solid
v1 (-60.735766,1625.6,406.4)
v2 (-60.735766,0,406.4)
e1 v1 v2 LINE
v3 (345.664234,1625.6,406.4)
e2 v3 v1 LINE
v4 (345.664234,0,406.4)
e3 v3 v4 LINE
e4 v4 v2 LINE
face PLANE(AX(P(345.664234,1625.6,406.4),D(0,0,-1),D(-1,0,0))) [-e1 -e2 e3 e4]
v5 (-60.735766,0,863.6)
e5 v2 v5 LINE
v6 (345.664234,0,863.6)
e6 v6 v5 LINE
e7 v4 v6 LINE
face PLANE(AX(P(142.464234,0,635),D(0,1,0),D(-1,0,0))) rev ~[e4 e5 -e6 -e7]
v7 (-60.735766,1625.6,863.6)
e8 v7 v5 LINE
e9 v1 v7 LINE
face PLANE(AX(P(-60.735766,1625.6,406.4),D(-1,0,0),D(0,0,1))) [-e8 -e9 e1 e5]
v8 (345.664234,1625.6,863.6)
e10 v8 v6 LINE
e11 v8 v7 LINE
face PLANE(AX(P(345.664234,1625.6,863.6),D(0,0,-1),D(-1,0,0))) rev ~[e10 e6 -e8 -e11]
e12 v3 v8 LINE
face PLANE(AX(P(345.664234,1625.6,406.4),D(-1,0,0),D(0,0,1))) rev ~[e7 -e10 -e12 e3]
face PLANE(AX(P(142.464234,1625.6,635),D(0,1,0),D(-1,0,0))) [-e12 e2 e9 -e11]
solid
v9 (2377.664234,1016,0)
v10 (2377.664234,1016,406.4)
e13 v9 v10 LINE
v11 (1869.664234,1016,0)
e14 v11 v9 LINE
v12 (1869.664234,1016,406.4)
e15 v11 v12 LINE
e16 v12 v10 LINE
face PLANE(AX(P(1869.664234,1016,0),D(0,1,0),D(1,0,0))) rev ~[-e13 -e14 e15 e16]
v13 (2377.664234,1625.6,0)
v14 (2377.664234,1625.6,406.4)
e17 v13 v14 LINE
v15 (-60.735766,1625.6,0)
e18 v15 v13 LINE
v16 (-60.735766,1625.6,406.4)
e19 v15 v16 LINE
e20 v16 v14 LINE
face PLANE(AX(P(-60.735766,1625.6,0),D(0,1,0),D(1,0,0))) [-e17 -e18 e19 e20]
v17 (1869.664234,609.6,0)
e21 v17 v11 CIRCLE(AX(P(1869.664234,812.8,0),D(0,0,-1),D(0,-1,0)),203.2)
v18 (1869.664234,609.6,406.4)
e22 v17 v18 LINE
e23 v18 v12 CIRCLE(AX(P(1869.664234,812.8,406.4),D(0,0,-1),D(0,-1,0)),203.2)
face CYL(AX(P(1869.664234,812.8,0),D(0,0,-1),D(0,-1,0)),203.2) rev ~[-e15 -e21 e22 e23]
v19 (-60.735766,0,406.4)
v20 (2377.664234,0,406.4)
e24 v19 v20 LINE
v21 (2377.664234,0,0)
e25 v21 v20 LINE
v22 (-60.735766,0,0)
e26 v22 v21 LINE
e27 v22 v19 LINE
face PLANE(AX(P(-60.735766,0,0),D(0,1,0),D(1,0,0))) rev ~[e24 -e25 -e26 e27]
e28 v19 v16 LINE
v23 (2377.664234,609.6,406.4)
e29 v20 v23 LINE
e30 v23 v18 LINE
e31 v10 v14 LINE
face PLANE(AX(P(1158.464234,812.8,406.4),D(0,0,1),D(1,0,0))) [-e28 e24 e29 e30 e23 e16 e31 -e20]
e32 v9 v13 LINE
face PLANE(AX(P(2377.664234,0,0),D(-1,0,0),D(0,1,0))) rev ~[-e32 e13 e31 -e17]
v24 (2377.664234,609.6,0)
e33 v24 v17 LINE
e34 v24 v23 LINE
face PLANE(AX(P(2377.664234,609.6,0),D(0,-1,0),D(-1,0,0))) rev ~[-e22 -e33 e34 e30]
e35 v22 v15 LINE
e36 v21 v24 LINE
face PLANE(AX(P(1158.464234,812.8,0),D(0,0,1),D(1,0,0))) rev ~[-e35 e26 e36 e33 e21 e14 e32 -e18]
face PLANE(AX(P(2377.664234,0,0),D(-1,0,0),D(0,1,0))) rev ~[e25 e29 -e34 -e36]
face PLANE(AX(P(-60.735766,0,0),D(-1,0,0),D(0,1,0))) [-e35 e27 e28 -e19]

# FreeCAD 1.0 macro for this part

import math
import FreeCAD as App
import Part
import Sketcher
from FreeCAD import Vector
Q = App.Units.Quantity


def add_polygon(sketch, points):
    """Adds a closed chain of lines whose ends are joined by coincident constraints."""
    first, n = sketch.GeometryCount, len(points)
    for a, b in zip(points, points[1:] + points[:1]):
        sketch.addGeometry(Part.LineSegment(App.Vector(*a, 0), App.Vector(*b, 0)), False)
    for i in range(n):
        sketch.addConstraint(Sketcher.Constraint("Coincident", first + i, 2, first + (i + 1) % n, 1))

doc = App.newDocument("Part")
body = doc.addObject("PartDesign::Body", "Body")

# Sketch on XY plane
sketch1 = doc.addObject("Sketcher::SketchObject", "Sketch")
body.addObject(sketch1)
sketch1.AttachmentSupport = (doc.XY_Plane, [""])
sketch1.MapMode = "FlatFace"
add_polygon(sketch1, [(-61, 1626), (-61, 0), (2378, 0), (2378, 1626)])  # lines 0-3
sketch1.addConstraint([
    Sketcher.Constraint("Vertical", 0),
    Sketcher.Constraint("Horizontal", 1),
    Sketcher.Constraint("Vertical", 2),
    Sketcher.Constraint("Horizontal", 3),
    Sketcher.Constraint("PointOnObject", 0, 2, -1),
    Sketcher.Constraint("DistanceX", 1, 1, 1, 2, Q("96 in")),
    Sketcher.Constraint("DistanceY", 0, 2, 0, 1, Q("64 in")),
    Sketcher.Constraint("DistanceX", 0, 2, -1, 1, Q("60.735766 mm")),
])
pad1 = doc.addObject("PartDesign::Pad", "Pad")
body.addObject(pad1)
pad1.Profile = sketch1
pad1.Length = Q("16 in")

# Sketch on XY plane
sketch2 = doc.addObject("Sketcher::SketchObject", "Sketch001")
body.addObject(sketch2)
sketch2.AttachmentSupport = (doc.XY_Plane, [""])
sketch2.MapMode = "FlatFace"
sketch2.addGeometry([
    Part.LineSegment(Vector(2378, 1016, 0), Vector(2378, 610, 0)),
    Part.LineSegment(Vector(2378, 610, 0), Vector(1870, 610, 0)),
    Part.ArcOfCircle(Part.Circle(Vector(1870, 813, 0), Vector(0, 0, 1), 203), math.radians(90), math.radians(270)),
    Part.LineSegment(Vector(1870, 1016, 0), Vector(2378, 1016, 0)),
], False)
sketch2.addConstraint([
    Sketcher.Constraint("Coincident", 0, 2, 1, 1),
    Sketcher.Constraint("Tangent", 1, 2, 2, 2),
    Sketcher.Constraint("Tangent", 2, 1, 3, 1),
    Sketcher.Constraint("Coincident", 3, 2, 0, 1),
    Sketcher.Constraint("Vertical", 0),
    Sketcher.Constraint("Horizontal", 1),
    Sketcher.Constraint("Horizontal", 3),
    Sketcher.Constraint("Radius", 2, Q("8 in")),
    Sketcher.Constraint("DistanceX", 1, 2, 1, 1, Q("20 in")),
    Sketcher.Constraint("DistanceY", -1, 1, 2, 3, Q("32 in")),
    Sketcher.Constraint("DistanceX", -1, 1, 2, 3, Q("1869.664234 mm")),
])
pocket1 = doc.addObject("PartDesign::Pocket", "Pocket")
body.addObject(pocket1)
pocket1.Profile = sketch2
pocket1.Length = Q("16 in")
pocket1.Reversed = True
body2 = doc.addObject("PartDesign::Body", "Body001")

# Sketch on XZ plane
sketch3 = doc.addObject("Sketcher::SketchObject", "Sketch002")
body2.addObject(sketch3)
sketch3.AttachmentSupport = (doc.getObject("XZ_Plane001"), [""])
sketch3.MapMode = "FlatFace"
sketch3.AttachmentOffset = App.Placement(Vector(0, 0, -64 * 25.4), App.Rotation())
add_polygon(sketch3, [(346, 864), (346, 406), (-61, 406), (-61, 864)])  # lines 0-3
sketch3.addConstraint([
    Sketcher.Constraint("Vertical", 0),
    Sketcher.Constraint("Horizontal", 1),
    Sketcher.Constraint("Vertical", 2),
    Sketcher.Constraint("Horizontal", 3),
    Sketcher.Constraint("DistanceX", 1, 2, 1, 1, Q("16 in")),
    Sketcher.Constraint("DistanceY", 0, 2, 0, 1, Q("18 in")),
    Sketcher.Constraint("DistanceY", -1, 1, 0, 2, Q("16 in")),
    Sketcher.Constraint("DistanceX", -1, 1, 0, 2, Q("345.664234 mm")),
])
pad2 = doc.addObject("PartDesign::Pad", "Pad001")
body2.addObject(pad2)
pad2.Profile = sketch3
pad2.Length = Q("64 in")

doc.recompute()
